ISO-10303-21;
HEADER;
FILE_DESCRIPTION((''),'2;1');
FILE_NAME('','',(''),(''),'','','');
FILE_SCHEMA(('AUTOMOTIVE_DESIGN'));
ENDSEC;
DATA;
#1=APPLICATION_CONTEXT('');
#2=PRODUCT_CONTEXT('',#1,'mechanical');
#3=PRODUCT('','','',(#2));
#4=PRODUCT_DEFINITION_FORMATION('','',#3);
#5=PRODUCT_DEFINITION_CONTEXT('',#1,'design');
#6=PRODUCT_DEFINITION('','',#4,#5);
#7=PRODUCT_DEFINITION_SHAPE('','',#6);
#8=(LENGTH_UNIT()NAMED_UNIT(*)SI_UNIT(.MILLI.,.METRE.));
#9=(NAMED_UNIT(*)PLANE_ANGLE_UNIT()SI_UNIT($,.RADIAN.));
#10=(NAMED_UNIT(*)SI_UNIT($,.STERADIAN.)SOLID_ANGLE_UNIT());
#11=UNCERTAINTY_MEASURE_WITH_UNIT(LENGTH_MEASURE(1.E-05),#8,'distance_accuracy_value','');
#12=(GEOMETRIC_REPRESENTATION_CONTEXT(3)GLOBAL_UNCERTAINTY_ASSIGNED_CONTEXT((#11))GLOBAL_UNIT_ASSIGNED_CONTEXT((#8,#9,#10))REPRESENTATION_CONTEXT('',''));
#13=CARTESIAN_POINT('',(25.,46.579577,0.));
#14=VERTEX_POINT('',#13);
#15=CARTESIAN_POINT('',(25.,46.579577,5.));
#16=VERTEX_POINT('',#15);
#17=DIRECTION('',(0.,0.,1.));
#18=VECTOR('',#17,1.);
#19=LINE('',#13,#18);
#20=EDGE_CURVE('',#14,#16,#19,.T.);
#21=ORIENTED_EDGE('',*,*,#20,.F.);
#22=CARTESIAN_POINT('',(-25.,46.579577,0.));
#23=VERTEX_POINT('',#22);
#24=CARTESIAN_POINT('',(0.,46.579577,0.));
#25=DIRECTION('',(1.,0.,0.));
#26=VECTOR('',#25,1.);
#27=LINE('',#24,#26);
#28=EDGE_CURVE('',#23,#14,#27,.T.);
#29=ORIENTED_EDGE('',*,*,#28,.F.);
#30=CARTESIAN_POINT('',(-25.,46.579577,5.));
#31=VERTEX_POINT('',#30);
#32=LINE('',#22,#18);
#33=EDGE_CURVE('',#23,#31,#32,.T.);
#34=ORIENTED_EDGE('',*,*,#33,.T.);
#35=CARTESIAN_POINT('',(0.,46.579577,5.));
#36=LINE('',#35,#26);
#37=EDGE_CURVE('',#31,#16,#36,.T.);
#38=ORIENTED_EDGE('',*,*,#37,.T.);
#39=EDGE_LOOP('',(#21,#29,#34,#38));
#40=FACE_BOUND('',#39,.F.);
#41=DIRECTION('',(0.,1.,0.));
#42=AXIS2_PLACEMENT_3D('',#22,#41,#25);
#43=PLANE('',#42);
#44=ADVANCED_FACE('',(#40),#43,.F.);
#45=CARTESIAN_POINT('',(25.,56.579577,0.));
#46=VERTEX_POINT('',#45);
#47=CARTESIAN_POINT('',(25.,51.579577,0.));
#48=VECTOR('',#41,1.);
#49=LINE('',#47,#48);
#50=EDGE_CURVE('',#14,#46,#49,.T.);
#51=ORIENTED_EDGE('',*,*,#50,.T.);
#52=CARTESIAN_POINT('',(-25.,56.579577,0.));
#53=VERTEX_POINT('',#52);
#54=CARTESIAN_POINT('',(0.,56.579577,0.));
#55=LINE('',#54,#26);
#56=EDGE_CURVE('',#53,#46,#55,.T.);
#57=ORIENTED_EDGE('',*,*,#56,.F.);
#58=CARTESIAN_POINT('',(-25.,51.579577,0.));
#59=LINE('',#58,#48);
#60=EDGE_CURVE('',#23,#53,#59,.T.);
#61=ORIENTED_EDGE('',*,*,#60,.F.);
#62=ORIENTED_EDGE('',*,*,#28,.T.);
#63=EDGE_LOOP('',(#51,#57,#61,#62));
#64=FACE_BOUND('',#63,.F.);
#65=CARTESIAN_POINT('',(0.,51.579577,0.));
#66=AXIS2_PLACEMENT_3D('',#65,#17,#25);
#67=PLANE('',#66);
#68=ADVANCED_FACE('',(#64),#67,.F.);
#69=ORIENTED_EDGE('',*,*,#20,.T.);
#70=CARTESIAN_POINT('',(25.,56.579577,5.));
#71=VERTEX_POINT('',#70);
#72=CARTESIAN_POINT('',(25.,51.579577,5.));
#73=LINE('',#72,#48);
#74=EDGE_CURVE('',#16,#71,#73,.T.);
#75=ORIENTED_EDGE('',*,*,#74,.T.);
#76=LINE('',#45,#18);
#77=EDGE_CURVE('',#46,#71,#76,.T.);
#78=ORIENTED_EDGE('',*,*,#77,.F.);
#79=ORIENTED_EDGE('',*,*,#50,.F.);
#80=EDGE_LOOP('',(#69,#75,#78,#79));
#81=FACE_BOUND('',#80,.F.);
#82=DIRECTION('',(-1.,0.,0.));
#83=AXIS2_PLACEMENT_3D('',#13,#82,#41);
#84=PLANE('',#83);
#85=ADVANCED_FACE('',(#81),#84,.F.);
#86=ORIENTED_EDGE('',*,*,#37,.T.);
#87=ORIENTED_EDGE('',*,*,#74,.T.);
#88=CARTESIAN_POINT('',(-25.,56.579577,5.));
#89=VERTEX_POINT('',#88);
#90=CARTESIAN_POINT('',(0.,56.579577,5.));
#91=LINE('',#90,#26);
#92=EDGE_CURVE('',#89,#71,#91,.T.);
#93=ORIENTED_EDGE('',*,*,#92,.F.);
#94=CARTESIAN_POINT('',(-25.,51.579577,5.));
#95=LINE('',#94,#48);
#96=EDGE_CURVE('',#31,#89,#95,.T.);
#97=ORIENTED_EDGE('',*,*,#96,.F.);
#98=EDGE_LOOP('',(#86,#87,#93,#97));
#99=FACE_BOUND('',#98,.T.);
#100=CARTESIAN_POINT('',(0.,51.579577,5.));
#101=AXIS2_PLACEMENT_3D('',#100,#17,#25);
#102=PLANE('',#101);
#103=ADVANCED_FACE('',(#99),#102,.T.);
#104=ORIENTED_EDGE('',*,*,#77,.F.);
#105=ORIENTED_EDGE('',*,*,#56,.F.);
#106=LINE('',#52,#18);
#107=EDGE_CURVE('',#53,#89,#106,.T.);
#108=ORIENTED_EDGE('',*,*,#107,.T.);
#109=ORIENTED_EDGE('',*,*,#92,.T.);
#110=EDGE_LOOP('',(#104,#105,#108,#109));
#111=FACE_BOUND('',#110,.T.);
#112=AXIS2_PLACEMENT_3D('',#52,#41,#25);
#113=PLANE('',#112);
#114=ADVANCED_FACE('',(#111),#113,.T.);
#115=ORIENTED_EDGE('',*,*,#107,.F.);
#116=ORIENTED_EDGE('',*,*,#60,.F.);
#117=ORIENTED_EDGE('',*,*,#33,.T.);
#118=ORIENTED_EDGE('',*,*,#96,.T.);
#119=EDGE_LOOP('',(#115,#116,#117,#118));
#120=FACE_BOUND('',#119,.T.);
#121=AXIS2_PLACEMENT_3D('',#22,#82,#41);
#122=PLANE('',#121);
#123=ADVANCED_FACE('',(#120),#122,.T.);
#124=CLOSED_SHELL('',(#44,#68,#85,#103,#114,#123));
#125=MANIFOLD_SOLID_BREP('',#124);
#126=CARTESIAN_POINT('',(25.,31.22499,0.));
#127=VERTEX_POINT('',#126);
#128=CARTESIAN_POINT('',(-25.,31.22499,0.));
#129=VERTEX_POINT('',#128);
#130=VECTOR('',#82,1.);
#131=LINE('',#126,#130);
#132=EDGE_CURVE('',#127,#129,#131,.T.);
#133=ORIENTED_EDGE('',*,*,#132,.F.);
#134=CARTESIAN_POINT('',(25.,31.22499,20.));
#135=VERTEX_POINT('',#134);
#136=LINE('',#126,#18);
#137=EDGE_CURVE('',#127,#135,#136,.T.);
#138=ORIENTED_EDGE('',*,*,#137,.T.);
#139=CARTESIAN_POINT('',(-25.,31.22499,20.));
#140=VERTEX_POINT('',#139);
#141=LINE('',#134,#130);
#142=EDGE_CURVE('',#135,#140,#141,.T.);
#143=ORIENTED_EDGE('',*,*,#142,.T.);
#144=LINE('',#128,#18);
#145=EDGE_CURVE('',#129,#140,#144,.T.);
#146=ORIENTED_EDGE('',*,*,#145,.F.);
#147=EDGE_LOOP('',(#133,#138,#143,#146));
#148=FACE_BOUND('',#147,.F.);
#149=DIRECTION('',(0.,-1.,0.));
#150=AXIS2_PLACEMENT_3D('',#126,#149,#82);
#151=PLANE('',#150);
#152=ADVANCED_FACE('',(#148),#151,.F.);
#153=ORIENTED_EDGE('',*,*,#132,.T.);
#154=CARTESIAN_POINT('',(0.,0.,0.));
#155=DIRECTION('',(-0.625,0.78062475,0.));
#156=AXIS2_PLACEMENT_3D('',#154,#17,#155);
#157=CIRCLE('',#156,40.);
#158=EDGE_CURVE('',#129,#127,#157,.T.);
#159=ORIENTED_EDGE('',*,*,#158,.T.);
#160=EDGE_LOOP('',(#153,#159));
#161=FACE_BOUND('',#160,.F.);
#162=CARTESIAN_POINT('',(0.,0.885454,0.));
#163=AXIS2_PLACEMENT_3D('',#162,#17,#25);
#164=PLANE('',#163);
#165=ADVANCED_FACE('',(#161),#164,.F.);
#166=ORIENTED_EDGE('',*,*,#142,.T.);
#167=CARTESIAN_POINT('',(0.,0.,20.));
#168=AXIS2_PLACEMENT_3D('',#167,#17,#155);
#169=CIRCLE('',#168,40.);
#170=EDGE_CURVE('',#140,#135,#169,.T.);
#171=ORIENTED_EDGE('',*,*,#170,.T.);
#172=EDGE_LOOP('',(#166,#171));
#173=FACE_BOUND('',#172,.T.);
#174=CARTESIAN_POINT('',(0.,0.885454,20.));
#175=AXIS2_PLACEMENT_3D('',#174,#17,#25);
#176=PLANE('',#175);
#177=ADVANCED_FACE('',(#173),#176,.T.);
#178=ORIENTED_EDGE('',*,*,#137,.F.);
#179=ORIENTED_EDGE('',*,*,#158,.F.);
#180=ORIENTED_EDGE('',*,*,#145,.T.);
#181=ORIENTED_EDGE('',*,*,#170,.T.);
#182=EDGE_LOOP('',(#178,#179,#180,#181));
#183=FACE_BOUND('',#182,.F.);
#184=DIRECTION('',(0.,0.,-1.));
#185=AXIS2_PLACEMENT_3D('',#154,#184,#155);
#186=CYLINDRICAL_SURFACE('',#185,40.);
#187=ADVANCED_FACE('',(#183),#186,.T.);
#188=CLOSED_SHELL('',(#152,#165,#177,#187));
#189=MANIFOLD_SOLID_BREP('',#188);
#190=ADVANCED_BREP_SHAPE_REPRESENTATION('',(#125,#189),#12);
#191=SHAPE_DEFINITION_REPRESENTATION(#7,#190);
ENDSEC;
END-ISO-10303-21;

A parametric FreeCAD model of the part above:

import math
import FreeCAD as App
import Part
import Sketcher

doc = App.newDocument("Part")
body = doc.addObject("PartDesign::Body", "Body")

sketch1 = doc.addObject("Sketcher::SketchObject", "Sketch")
body.addObject(sketch1)
sketch1.AttachmentSupport = (doc.XY_Plane, [""])
sketch1.MapMode = "FlatFace"
sketch1.addGeometry(Part.LineSegment(App.Vector(25, 31.22499, 0), App.Vector(-25, 31.22499, 0)), False)
sketch1.addGeometry(Part.ArcOfCircle(Part.Circle(App.Vector(0, 0, 0), App.Vector(0, 0, 1), 40), math.radians(128.682187), math.radians(411.317813)), False)
sketch1.addConstraint(Sketcher.Constraint("Coincident", 0, 1, 1, 2))
sketch1.addConstraint(Sketcher.Constraint("Coincident", 1, 1, 0, 2))
sketch1.addConstraint(Sketcher.Constraint("Horizontal", 0))
sketch1.addConstraint(Sketcher.Constraint("Coincident", 1, 3, -1, 1))
sketch1.addConstraint(Sketcher.Constraint("Radius", 1, 40.0))
sketch1.addConstraint(Sketcher.Constraint("DistanceX", 0, 2, 0, 1, 50.0))
pad1 = doc.addObject("PartDesign::Pad", "Pad")
body.addObject(pad1)
pad1.Profile = sketch1
pad1.Length = 20
body2 = doc.addObject("PartDesign::Body", "Body001")

sketch2 = doc.addObject("Sketcher::SketchObject", "Sketch001")
body2.addObject(sketch2)
sketch2.AttachmentSupport = (doc.getObject("XY_Plane001"), [""])
sketch2.MapMode = "FlatFace"
sketch2.addGeometry(Part.LineSegment(App.Vector(-25, 56.579577, 0), App.Vector(-25, 46.579577, 0)), False)
sketch2.addGeometry(Part.LineSegment(App.Vector(-25, 46.579577, 0), App.Vector(25, 46.579577, 0)), False)
sketch2.addGeometry(Part.LineSegment(App.Vector(25, 46.579577, 0), App.Vector(25, 56.579577, 0)), False)
sketch2.addGeometry(Part.LineSegment(App.Vector(25, 56.579577, 0), App.Vector(-25, 56.579577, 0)), False)
sketch2.addConstraint(Sketcher.Constraint("Coincident", 0, 2, 1, 1))
sketch2.addConstraint(Sketcher.Constraint("Coincident", 1, 2, 2, 1))
sketch2.addConstraint(Sketcher.Constraint("Coincident", 2, 2, 3, 1))
sketch2.addConstraint(Sketcher.Constraint("Coincident", 3, 2, 0, 1))
sketch2.addConstraint(Sketcher.Constraint("Vertical", 0))
sketch2.addConstraint(Sketcher.Constraint("Horizontal", 1))
sketch2.addConstraint(Sketcher.Constraint("Vertical", 2))
sketch2.addConstraint(Sketcher.Constraint("Horizontal", 3))
sketch2.addConstraint(Sketcher.Constraint("DistanceX", 1, 1, 1, 2, 50.0))
sketch2.addConstraint(Sketcher.Constraint("DistanceY", 0, 2, 0, 1, 10.0))
sketch2.addConstraint(Sketcher.Constraint("DistanceX", 0, 2, -1, 1, 25.0))
sketch2.addConstraint(Sketcher.Constraint("DistanceY", -1, 1, 0, 2, 46.579577))
pad2 = doc.addObject("PartDesign::Pad", "Pad001")
body2.addObject(pad2)
pad2.Profile = sketch2
pad2.Length = 5

doc.recompute()
